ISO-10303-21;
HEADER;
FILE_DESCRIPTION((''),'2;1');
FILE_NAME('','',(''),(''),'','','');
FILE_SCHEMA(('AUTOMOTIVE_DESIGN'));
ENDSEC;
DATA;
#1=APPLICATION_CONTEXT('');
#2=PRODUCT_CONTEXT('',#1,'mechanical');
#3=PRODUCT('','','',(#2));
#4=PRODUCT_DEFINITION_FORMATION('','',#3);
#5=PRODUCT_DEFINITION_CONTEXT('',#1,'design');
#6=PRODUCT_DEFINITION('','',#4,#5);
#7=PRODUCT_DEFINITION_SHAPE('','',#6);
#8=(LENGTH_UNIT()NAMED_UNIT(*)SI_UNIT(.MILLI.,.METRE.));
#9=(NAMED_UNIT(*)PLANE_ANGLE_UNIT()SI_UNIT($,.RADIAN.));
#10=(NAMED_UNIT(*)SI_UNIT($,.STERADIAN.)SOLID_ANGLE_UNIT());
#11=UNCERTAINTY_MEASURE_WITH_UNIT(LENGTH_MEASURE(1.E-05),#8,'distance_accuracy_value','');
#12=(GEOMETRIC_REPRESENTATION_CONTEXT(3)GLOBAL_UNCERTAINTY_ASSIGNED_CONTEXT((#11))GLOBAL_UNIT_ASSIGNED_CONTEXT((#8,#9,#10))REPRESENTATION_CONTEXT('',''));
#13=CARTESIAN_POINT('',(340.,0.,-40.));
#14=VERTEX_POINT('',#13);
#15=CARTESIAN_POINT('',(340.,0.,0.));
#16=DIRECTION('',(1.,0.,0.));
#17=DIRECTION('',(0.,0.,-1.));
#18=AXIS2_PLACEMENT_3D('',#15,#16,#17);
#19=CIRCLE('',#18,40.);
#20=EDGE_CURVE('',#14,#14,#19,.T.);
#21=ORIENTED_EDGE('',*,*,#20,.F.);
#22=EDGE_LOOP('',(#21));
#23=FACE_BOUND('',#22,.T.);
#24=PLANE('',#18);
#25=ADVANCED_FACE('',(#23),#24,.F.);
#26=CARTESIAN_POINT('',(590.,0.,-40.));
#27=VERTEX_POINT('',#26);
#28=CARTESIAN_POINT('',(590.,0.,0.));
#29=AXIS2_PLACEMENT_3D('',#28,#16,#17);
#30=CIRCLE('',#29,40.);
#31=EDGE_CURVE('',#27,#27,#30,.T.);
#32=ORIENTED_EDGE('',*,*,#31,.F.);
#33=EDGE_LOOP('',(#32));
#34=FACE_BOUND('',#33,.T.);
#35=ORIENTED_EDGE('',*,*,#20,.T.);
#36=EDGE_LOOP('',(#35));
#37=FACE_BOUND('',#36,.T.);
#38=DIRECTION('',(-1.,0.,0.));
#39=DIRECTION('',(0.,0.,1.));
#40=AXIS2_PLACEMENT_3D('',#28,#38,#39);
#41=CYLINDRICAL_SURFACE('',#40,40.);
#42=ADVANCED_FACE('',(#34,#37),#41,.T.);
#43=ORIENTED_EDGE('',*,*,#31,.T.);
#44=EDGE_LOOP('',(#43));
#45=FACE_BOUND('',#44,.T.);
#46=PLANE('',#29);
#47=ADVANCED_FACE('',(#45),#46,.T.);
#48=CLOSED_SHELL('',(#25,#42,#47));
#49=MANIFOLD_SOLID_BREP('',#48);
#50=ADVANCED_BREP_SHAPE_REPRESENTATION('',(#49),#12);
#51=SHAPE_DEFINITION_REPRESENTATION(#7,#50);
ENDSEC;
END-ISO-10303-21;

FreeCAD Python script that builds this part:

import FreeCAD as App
import Part
import Sketcher

doc = App.newDocument("Part")
body = doc.addObject("PartDesign::Body", "Body")

# Sketch on YZ plane
sketch1 = doc.addObject("Sketcher::SketchObject", "Sketch")
body.addObject(sketch1)
sketch1.AttachmentSupport = (doc.YZ_Plane, [""])
sketch1.MapMode = "FlatFace"
sketch1.AttachmentOffset = App.Placement(App.Vector(0, 0, 590), App.Rotation())
sketch1.addGeometry(Part.Circle(App.Vector(0, 0, 0), App.Vector(0, 0, 1), 40), False)
sketch1.addConstraint([
    Sketcher.Constraint("Coincident", 0, 3, -1, 1),
    Sketcher.Constraint("Diameter", 0, 80.0),
])

# Sketch on YZ plane
sketch2 = doc.addObject("Sketcher::SketchObject", "Sketch001")
body.addObject(sketch2)
sketch2.AttachmentSupport = (doc.YZ_Plane, [""])
sketch2.MapMode = "FlatFace"
sketch2.AttachmentOffset = App.Placement(App.Vector(0, 0, 340), App.Rotation())
sketch2.addGeometry(Part.Circle(App.Vector(0, 0, 0), App.Vector(0, 0, 1), 40), False)
sketch2.addConstraint([
    Sketcher.Constraint("Coincident", 0, 3, -1, 1),
    Sketcher.Constraint("Diameter", 0, 80.0),
])

additiveloft = doc.addObject("PartDesign::AdditiveLoft", "AdditiveLoft")
body.addObject(additiveloft)
additiveloft.Profile = sketch1
additiveloft.Sections = [sketch2]

doc.recompute()
